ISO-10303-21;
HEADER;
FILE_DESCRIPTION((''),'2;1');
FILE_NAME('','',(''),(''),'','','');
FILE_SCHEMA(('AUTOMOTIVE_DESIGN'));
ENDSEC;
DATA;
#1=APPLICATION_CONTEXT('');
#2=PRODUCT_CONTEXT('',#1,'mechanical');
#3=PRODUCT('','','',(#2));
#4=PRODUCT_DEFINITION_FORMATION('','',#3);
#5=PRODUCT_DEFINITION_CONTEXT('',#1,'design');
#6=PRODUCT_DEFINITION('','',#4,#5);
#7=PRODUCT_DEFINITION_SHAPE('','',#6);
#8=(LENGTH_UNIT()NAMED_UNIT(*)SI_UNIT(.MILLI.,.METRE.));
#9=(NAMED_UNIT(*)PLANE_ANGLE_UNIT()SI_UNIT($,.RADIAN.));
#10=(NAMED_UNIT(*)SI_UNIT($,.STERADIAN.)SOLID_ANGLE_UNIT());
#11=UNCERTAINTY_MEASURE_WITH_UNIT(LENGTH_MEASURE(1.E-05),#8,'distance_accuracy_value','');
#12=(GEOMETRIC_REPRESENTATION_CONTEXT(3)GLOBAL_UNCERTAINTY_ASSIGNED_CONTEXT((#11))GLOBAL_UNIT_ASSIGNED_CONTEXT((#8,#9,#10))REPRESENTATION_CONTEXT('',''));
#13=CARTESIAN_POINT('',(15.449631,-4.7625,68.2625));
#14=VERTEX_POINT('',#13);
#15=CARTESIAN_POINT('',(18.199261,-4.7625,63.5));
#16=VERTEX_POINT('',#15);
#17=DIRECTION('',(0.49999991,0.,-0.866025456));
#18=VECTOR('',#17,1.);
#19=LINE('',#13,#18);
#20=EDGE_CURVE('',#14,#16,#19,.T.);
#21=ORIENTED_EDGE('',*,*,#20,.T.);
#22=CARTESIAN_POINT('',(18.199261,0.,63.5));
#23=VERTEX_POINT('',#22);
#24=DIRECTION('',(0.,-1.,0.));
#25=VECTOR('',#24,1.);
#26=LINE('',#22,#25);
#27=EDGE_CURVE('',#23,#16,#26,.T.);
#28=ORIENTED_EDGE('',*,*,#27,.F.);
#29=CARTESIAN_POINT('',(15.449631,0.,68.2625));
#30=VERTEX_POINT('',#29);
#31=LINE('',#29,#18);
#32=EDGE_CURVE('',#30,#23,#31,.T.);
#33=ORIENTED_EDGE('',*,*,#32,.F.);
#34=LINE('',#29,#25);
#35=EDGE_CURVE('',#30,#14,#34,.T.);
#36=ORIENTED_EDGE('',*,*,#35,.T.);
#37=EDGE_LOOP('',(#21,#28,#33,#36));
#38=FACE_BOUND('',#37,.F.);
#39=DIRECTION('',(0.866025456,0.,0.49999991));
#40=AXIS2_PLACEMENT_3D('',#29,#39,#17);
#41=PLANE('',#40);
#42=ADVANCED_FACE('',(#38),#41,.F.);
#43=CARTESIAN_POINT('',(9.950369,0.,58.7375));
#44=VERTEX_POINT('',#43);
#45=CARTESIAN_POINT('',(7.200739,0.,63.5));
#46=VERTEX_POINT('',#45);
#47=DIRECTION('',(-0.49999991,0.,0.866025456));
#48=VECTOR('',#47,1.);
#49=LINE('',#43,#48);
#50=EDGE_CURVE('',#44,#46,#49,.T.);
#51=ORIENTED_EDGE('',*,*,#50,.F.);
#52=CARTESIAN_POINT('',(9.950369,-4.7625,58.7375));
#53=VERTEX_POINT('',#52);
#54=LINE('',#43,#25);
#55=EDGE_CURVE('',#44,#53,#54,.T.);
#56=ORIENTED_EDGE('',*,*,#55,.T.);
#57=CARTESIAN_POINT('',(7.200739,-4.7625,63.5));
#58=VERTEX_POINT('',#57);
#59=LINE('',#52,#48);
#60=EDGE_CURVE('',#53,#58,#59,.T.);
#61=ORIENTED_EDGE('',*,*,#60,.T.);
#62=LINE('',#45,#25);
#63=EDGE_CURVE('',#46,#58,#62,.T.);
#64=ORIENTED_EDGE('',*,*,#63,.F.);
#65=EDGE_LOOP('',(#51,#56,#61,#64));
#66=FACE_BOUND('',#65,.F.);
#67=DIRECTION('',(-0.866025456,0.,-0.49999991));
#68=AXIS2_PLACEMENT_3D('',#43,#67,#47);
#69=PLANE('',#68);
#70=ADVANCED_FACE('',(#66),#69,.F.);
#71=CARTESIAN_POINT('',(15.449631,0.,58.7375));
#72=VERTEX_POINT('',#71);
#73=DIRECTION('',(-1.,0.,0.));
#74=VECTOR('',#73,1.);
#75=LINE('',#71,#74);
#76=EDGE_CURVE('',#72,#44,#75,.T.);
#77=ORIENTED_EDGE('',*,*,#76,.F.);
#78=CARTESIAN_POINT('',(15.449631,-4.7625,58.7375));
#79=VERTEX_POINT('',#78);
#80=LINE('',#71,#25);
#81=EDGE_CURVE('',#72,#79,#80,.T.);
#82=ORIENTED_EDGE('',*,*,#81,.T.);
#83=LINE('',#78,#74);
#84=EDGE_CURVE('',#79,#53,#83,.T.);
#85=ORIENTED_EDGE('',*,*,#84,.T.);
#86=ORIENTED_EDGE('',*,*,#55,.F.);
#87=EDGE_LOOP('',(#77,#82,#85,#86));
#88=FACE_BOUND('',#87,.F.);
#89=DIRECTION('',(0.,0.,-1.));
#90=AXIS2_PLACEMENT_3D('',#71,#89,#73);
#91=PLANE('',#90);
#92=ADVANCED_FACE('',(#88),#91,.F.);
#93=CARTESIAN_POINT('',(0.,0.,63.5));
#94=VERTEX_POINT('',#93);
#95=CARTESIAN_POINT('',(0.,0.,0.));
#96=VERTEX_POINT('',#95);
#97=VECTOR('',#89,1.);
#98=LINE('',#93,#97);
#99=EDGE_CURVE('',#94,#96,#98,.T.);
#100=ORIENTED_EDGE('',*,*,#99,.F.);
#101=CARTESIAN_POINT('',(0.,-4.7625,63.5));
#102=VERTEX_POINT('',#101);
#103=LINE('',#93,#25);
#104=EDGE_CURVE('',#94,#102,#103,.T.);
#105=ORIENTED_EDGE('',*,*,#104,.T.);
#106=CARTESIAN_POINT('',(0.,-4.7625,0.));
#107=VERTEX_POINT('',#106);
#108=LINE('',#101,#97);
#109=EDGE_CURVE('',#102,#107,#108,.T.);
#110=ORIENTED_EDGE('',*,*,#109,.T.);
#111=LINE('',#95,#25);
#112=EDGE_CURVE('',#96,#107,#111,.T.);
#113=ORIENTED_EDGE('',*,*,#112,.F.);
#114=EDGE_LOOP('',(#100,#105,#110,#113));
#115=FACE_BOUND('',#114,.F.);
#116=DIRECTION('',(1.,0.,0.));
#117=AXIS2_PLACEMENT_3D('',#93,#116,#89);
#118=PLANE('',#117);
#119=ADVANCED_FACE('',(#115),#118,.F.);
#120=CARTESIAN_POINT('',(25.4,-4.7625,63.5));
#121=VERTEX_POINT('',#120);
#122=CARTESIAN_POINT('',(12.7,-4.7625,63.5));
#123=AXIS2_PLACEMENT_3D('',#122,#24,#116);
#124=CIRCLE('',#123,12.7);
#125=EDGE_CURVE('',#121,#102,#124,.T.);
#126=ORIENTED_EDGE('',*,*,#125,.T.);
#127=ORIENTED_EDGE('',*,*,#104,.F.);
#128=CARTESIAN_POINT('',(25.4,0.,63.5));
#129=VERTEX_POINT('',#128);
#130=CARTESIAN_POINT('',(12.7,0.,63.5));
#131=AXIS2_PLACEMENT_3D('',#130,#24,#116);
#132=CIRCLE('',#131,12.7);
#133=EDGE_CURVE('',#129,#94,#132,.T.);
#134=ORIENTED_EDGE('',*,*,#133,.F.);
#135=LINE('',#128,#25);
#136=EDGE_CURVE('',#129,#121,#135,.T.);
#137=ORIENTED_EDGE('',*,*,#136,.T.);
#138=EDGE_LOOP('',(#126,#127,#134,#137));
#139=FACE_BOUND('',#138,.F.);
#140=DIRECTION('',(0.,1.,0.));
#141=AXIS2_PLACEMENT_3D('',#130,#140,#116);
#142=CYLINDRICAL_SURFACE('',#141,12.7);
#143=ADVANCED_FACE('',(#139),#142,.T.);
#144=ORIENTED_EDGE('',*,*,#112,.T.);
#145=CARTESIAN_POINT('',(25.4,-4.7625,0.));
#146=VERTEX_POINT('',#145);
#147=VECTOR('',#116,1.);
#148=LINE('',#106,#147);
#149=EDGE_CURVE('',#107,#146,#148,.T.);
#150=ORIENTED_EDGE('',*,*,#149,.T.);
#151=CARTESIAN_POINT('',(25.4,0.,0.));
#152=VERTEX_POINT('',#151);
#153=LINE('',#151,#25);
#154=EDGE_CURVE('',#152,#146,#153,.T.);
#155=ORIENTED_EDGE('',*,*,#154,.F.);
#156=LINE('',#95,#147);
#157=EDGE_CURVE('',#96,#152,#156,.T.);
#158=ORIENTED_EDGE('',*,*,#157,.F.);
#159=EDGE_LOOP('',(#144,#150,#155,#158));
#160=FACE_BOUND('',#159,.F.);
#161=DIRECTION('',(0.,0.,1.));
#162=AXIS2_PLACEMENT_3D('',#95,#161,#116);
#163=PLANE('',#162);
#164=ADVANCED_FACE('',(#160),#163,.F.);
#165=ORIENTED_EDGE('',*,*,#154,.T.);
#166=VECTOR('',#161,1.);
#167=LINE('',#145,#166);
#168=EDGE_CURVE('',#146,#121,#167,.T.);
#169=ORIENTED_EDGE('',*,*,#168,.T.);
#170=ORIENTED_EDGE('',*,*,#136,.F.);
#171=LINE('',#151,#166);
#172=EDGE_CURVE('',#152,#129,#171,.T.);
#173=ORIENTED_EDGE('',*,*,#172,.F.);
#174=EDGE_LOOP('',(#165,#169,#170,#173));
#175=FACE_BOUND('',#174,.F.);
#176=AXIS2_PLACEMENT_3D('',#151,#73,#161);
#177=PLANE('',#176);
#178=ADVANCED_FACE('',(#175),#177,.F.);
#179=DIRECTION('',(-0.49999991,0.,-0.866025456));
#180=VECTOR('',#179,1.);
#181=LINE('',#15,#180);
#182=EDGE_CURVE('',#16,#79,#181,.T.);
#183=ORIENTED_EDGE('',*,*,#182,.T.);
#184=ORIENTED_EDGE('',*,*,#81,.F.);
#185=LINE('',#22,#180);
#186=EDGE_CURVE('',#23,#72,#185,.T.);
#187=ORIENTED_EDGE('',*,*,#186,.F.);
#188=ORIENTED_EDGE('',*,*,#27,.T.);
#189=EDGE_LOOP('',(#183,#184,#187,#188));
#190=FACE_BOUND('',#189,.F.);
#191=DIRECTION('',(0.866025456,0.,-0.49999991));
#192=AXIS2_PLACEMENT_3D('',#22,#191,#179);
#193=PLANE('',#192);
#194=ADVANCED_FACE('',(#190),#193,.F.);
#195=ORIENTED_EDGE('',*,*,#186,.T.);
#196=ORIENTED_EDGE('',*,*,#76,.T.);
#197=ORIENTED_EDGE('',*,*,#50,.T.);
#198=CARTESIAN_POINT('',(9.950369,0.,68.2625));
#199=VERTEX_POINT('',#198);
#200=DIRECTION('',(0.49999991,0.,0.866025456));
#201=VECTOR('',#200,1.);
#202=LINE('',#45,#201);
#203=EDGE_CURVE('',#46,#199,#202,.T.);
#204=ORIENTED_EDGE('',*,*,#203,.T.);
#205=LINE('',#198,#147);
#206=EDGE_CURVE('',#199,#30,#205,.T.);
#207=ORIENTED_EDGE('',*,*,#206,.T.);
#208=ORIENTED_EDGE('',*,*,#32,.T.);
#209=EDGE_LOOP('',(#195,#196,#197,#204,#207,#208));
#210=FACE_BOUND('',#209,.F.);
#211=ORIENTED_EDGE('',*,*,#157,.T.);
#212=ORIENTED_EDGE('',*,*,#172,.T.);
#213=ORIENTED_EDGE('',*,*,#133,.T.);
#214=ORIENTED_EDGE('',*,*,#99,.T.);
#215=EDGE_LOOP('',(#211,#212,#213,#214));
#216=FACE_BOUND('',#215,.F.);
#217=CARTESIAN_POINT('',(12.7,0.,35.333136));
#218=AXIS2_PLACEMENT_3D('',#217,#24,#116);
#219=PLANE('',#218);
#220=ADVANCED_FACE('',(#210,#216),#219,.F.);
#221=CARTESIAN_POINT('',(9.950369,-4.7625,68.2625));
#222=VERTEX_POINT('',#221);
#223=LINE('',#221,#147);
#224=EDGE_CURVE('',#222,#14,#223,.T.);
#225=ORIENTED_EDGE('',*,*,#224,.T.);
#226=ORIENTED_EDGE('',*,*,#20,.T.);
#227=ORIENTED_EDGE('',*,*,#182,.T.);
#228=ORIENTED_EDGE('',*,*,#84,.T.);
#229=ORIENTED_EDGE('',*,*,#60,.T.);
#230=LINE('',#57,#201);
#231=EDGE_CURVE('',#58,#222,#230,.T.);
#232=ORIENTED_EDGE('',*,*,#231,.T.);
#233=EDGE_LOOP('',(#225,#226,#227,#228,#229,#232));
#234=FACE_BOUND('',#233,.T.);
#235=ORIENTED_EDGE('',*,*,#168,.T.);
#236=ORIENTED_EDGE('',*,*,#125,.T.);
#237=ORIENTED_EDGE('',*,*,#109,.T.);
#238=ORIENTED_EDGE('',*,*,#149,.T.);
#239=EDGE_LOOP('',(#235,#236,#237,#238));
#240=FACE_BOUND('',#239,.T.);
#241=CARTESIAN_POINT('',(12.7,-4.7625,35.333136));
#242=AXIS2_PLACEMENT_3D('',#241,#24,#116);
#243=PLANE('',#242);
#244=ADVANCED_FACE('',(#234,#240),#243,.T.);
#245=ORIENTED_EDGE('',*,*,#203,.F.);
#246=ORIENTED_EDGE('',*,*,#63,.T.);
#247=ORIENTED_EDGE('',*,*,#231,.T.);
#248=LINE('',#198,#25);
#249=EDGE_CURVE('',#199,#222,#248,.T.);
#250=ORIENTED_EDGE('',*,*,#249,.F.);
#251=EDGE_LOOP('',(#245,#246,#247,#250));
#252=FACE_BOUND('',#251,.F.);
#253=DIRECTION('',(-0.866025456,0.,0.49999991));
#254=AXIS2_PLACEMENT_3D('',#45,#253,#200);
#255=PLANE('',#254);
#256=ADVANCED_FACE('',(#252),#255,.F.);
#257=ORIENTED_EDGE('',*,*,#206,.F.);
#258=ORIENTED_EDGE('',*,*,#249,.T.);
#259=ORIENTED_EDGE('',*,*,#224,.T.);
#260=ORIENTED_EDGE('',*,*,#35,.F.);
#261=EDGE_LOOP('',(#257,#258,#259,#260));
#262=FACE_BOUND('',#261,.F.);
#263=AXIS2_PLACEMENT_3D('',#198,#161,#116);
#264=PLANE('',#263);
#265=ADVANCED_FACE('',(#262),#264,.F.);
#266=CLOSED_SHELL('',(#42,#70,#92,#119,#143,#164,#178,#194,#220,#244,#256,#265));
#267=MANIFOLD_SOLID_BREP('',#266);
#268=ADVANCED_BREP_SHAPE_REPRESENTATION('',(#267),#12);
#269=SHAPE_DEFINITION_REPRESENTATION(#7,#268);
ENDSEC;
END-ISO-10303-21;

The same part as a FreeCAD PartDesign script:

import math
import FreeCAD as App
import Part
import Sketcher
from FreeCAD import Vector
Q = App.Units.Quantity

doc = App.newDocument("Part")
body = doc.addObject("PartDesign::Body", "Body")

# Sketch on XZ plane
sketch1 = body.newObject("Sketcher::SketchObject", "Sketch")
sketch1.AttachmentSupport = (doc.getObject("XZ_Plane"), [""])
sketch1.MapMode = "FlatFace"
sketch1.addGeometry(Part.LineSegment(Vector(0, 63.5, 0), Vector(0, 0, 0)), False)
sketch1.addGeometry(Part.LineSegment(Vector(0, 0, 0), Vector(25.4, 0, 0)), False)
sketch1.addGeometry(Part.LineSegment(Vector(25.4, 0, 0), Vector(25.4, 63.5, 0)), False)
sketch1.addGeometry(Part.ArcOfCircle(Part.Circle(Vector(12.7, 63.5, 0), Vector(0, 0, 1), 12.7), math.radians(0), math.radians(180)), False)
sketch1.addGeometry(Part.LineSegment(Vector(9.950369, 58.7375, 0), Vector(7.200739, 63.5, 0)), False)
sketch1.addGeometry(Part.LineSegment(Vector(7.200739, 63.5, 0), Vector(9.950369, 68.2625, 0)), False)
sketch1.addGeometry(Part.LineSegment(Vector(9.950369, 68.2625, 0), Vector(15.449631, 68.2625, 0)), False)
sketch1.addGeometry(Part.LineSegment(Vector(15.449631, 68.2625, 0), Vector(18.199261, 63.5, 0)), False)
sketch1.addGeometry(Part.LineSegment(Vector(18.199261, 63.5, 0), Vector(15.449631, 58.7375, 0)), False)
sketch1.addGeometry(Part.LineSegment(Vector(15.449631, 58.7375, 0), Vector(9.950369, 58.7375, 0)), False)
sketch1.addConstraint(Sketcher.Constraint("Coincident", 0, 2, 1, 1))
sketch1.addConstraint(Sketcher.Constraint("Coincident", 1, 2, 2, 1))
sketch1.addConstraint(Sketcher.Constraint("Tangent", 2, 2, 3, 1))
sketch1.addConstraint(Sketcher.Constraint("Tangent", 3, 2, 0, 1))
sketch1.addConstraint(Sketcher.Constraint("Coincident", 4, 2, 5, 1))
sketch1.addConstraint(Sketcher.Constraint("Coincident", 5, 2, 6, 1))
sketch1.addConstraint(Sketcher.Constraint("Coincident", 6, 2, 7, 1))
sketch1.addConstraint(Sketcher.Constraint("Coincident", 7, 2, 8, 1))
sketch1.addConstraint(Sketcher.Constraint("Coincident", 8, 2, 9, 1))
sketch1.addConstraint(Sketcher.Constraint("Coincident", 9, 2, 4, 1))
sketch1.addConstraint(Sketcher.Constraint("Vertical", 0))
sketch1.addConstraint(Sketcher.Constraint("Horizontal", 1))
sketch1.addConstraint(Sketcher.Constraint("Vertical", 2))
sketch1.addConstraint(Sketcher.Constraint("Horizontal", 6))
sketch1.addConstraint(Sketcher.Constraint("Horizontal", 9))
sketch1.addConstraint(Sketcher.Constraint("Coincident", 0, 2, -1, 1))
sketch1.addConstraint(Sketcher.Constraint("Parallel", 4, 7))
sketch1.addConstraint(Sketcher.Constraint("Parallel", 5, 8))
sketch1.addConstraint(Sketcher.Constraint("Horizontal", 3, 2, 4, 2))
sketch1.addConstraint(Sketcher.Constraint("Horizontal", 4, 2, 7, 2))
sketch1.addConstraint(Sketcher.Constraint("Vertical", 6, 2, 8, 2))
sketch1.addConstraint(Sketcher.Constraint("Vertical", 5, 2, 9, 2))
sketch1.addConstraint(Sketcher.Constraint("Radius", 3, Q("0.5 in")))
sketch1.addConstraint(Sketcher.Constraint("DistanceY", 0, 2, 0, 1, Q("2.5 in")))
sketch1.addConstraint(Sketcher.Constraint("Angle", 4, Q("119.999994 deg")))
sketch1.addConstraint(Sketcher.Constraint("DistanceY", -1, 1, 5, 2, Q("2.6875 in")))
sketch1.addConstraint(Sketcher.Constraint("DistanceX", 6, 1, 6, 2, Q("5.499262 mm")))
sketch1.addConstraint(Sketcher.Constraint("DistanceX", -1, 1, 4, 2, Q("7.200739 mm")))
pad1 = body.newObject("PartDesign::Pad", "Pad")
pad1.Profile = sketch1
pad1.Length = Q("0.1875 in")

doc.recompute()
